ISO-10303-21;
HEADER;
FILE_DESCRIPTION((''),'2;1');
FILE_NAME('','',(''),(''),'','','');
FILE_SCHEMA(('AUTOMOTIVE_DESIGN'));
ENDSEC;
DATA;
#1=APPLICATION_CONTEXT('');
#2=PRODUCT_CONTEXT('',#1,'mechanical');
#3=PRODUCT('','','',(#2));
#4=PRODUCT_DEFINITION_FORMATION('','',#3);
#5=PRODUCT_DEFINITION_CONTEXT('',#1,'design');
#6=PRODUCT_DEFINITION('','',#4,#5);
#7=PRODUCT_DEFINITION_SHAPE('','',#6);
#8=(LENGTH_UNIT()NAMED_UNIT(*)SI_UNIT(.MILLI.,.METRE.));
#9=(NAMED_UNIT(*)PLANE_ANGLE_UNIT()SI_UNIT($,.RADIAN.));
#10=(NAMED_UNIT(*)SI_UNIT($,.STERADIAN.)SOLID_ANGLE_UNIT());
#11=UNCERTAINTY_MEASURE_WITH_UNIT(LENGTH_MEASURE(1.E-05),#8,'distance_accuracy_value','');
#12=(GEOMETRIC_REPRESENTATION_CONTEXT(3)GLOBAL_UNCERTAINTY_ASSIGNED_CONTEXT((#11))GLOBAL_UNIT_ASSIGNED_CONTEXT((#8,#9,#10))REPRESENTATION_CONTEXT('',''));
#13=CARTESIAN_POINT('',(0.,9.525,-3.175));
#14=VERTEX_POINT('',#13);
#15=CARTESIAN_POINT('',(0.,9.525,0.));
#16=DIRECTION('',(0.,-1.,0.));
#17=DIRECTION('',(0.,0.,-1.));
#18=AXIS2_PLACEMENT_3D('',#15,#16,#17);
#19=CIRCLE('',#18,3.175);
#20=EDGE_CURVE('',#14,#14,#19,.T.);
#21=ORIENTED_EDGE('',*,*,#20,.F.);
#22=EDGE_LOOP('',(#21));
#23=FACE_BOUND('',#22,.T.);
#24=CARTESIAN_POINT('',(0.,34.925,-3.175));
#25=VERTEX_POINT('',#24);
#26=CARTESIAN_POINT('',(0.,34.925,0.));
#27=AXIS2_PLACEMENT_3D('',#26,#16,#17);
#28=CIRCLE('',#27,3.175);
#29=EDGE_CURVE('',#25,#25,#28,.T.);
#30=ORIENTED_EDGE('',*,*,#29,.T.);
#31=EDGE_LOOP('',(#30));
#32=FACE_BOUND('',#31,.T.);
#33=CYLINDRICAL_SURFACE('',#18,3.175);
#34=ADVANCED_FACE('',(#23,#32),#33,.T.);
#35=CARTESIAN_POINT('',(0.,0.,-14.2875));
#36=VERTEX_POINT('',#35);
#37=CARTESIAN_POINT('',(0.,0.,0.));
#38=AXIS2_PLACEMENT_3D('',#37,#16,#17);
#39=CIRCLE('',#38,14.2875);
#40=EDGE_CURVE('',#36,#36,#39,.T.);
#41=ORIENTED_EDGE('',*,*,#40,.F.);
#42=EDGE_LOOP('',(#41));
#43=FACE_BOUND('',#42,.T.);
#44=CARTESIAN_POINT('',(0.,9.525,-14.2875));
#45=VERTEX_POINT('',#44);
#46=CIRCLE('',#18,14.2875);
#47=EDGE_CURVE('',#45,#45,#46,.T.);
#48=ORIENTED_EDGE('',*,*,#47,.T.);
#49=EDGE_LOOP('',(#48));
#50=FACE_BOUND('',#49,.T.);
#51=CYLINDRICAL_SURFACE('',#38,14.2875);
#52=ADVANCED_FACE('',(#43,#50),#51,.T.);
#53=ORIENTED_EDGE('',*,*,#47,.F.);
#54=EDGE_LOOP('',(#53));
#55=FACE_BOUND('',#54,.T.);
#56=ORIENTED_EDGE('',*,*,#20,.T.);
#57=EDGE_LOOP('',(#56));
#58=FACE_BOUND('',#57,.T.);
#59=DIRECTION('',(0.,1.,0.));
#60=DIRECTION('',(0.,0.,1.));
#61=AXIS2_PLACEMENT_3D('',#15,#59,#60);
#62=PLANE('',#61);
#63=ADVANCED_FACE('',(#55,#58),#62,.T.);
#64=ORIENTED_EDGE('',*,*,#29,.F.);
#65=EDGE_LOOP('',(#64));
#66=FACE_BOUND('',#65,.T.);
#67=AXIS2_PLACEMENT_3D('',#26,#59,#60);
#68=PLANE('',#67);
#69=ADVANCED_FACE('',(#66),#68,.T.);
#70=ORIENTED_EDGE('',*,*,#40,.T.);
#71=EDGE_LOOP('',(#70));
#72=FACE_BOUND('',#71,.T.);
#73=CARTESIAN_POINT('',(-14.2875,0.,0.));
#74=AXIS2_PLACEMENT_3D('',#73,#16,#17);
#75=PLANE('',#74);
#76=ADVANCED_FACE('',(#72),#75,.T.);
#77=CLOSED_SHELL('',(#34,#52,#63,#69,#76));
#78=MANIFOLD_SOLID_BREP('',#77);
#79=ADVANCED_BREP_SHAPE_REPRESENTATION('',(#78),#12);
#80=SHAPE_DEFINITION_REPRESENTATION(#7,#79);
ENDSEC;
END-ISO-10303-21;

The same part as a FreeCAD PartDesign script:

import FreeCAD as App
import Part
import Sketcher
Q = App.Units.Quantity

doc = App.newDocument("Part")
body = doc.addObject("PartDesign::Body", "Body")

# Sketch on XY plane
sketch1 = body.newObject("Sketcher::SketchObject", "Sketch")
sketch1.AttachmentSupport = (doc.getObject("XY_Plane"), [""])
sketch1.MapMode = "FlatFace"
sketch1.addGeometry(Part.LineSegment(App.Vector(0, 34.925, 0), App.Vector(0, 9.525, 0)), False)
sketch1.addGeometry(Part.LineSegment(App.Vector(0, 9.525, 0), App.Vector(3.175, 9.525, 0)), False)
sketch1.addGeometry(Part.LineSegment(App.Vector(3.175, 9.525, 0), App.Vector(3.175, 34.925, 0)), False)
sketch1.addGeometry(Part.LineSegment(App.Vector(3.175, 34.925, 0), App.Vector(0, 34.925, 0)), False)
sketch1.addConstraint(Sketcher.Constraint("Coincident", 0, 2, 1, 1))
sketch1.addConstraint(Sketcher.Constraint("Coincident", 1, 2, 2, 1))
sketch1.addConstraint(Sketcher.Constraint("Coincident", 2, 2, 3, 1))
sketch1.addConstraint(Sketcher.Constraint("Coincident", 3, 2, 0, 1))
sketch1.addConstraint(Sketcher.Constraint("Vertical", 0))
sketch1.addConstraint(Sketcher.Constraint("Horizontal", 1))
sketch1.addConstraint(Sketcher.Constraint("Vertical", 2))
sketch1.addConstraint(Sketcher.Constraint("Horizontal", 3))
sketch1.addConstraint(Sketcher.Constraint("PointOnObject", 0, 2, -2))
sketch1.addConstraint(Sketcher.Constraint("DistanceY", 0, 2, 0, 1, Q("1 in")))
sketch1.addConstraint(Sketcher.Constraint("DistanceX", 1, 1, 1, 2, Q("0.125 in")))
sketch1.addConstraint(Sketcher.Constraint("DistanceY", -1, 1, 0, 2, Q("0.375 in")))
revolution = body.newObject("PartDesign::Revolution", "Revolution")
revolution.Profile = sketch1
revolution.ReferenceAxis = (sketch1, ["V_Axis"])
revolution.Angle = 360

# Sketch on XY plane
sketch2 = body.newObject("Sketcher::SketchObject", "Sketch001")
sketch2.AttachmentSupport = (doc.getObject("XY_Plane"), [""])
sketch2.MapMode = "FlatFace"
sketch2.addGeometry(Part.LineSegment(App.Vector(0, 9.525, 0), App.Vector(0, 0, 0)), False)
sketch2.addGeometry(Part.LineSegment(App.Vector(0, 0, 0), App.Vector(14.2875, 0, 0)), False)
sketch2.addGeometry(Part.LineSegment(App.Vector(14.2875, 0, 0), App.Vector(14.2875, 9.525, 0)), False)
sketch2.addGeometry(Part.LineSegment(App.Vector(14.2875, 9.525, 0), App.Vector(0, 9.525, 0)), False)
sketch2.addConstraint(Sketcher.Constraint("Coincident", 0, 2, 1, 1))
sketch2.addConstraint(Sketcher.Constraint("Coincident", 1, 2, 2, 1))
sketch2.addConstraint(Sketcher.Constraint("Coincident", 2, 2, 3, 1))
sketch2.addConstraint(Sketcher.Constraint("Coincident", 3, 2, 0, 1))
sketch2.addConstraint(Sketcher.Constraint("Vertical", 0))
sketch2.addConstraint(Sketcher.Constraint("Horizontal", 1))
sketch2.addConstraint(Sketcher.Constraint("Vertical", 2))
sketch2.addConstraint(Sketcher.Constraint("Horizontal", 3))
sketch2.addConstraint(Sketcher.Constraint("Coincident", 0, 2, -1, 1))
sketch2.addConstraint(Sketcher.Constraint("DistanceX", 1, 1, 1, 2, Q("0.5625 in")))
sketch2.addConstraint(Sketcher.Constraint("DistanceY", 0, 2, 0, 1, Q("0.375 in")))
revolution2 = body.newObject("PartDesign::Revolution", "Revolution001")
revolution2.Profile = sketch2
revolution2.ReferenceAxis = (sketch2, ["V_Axis"])
revolution2.Angle = 360

doc.recompute()
